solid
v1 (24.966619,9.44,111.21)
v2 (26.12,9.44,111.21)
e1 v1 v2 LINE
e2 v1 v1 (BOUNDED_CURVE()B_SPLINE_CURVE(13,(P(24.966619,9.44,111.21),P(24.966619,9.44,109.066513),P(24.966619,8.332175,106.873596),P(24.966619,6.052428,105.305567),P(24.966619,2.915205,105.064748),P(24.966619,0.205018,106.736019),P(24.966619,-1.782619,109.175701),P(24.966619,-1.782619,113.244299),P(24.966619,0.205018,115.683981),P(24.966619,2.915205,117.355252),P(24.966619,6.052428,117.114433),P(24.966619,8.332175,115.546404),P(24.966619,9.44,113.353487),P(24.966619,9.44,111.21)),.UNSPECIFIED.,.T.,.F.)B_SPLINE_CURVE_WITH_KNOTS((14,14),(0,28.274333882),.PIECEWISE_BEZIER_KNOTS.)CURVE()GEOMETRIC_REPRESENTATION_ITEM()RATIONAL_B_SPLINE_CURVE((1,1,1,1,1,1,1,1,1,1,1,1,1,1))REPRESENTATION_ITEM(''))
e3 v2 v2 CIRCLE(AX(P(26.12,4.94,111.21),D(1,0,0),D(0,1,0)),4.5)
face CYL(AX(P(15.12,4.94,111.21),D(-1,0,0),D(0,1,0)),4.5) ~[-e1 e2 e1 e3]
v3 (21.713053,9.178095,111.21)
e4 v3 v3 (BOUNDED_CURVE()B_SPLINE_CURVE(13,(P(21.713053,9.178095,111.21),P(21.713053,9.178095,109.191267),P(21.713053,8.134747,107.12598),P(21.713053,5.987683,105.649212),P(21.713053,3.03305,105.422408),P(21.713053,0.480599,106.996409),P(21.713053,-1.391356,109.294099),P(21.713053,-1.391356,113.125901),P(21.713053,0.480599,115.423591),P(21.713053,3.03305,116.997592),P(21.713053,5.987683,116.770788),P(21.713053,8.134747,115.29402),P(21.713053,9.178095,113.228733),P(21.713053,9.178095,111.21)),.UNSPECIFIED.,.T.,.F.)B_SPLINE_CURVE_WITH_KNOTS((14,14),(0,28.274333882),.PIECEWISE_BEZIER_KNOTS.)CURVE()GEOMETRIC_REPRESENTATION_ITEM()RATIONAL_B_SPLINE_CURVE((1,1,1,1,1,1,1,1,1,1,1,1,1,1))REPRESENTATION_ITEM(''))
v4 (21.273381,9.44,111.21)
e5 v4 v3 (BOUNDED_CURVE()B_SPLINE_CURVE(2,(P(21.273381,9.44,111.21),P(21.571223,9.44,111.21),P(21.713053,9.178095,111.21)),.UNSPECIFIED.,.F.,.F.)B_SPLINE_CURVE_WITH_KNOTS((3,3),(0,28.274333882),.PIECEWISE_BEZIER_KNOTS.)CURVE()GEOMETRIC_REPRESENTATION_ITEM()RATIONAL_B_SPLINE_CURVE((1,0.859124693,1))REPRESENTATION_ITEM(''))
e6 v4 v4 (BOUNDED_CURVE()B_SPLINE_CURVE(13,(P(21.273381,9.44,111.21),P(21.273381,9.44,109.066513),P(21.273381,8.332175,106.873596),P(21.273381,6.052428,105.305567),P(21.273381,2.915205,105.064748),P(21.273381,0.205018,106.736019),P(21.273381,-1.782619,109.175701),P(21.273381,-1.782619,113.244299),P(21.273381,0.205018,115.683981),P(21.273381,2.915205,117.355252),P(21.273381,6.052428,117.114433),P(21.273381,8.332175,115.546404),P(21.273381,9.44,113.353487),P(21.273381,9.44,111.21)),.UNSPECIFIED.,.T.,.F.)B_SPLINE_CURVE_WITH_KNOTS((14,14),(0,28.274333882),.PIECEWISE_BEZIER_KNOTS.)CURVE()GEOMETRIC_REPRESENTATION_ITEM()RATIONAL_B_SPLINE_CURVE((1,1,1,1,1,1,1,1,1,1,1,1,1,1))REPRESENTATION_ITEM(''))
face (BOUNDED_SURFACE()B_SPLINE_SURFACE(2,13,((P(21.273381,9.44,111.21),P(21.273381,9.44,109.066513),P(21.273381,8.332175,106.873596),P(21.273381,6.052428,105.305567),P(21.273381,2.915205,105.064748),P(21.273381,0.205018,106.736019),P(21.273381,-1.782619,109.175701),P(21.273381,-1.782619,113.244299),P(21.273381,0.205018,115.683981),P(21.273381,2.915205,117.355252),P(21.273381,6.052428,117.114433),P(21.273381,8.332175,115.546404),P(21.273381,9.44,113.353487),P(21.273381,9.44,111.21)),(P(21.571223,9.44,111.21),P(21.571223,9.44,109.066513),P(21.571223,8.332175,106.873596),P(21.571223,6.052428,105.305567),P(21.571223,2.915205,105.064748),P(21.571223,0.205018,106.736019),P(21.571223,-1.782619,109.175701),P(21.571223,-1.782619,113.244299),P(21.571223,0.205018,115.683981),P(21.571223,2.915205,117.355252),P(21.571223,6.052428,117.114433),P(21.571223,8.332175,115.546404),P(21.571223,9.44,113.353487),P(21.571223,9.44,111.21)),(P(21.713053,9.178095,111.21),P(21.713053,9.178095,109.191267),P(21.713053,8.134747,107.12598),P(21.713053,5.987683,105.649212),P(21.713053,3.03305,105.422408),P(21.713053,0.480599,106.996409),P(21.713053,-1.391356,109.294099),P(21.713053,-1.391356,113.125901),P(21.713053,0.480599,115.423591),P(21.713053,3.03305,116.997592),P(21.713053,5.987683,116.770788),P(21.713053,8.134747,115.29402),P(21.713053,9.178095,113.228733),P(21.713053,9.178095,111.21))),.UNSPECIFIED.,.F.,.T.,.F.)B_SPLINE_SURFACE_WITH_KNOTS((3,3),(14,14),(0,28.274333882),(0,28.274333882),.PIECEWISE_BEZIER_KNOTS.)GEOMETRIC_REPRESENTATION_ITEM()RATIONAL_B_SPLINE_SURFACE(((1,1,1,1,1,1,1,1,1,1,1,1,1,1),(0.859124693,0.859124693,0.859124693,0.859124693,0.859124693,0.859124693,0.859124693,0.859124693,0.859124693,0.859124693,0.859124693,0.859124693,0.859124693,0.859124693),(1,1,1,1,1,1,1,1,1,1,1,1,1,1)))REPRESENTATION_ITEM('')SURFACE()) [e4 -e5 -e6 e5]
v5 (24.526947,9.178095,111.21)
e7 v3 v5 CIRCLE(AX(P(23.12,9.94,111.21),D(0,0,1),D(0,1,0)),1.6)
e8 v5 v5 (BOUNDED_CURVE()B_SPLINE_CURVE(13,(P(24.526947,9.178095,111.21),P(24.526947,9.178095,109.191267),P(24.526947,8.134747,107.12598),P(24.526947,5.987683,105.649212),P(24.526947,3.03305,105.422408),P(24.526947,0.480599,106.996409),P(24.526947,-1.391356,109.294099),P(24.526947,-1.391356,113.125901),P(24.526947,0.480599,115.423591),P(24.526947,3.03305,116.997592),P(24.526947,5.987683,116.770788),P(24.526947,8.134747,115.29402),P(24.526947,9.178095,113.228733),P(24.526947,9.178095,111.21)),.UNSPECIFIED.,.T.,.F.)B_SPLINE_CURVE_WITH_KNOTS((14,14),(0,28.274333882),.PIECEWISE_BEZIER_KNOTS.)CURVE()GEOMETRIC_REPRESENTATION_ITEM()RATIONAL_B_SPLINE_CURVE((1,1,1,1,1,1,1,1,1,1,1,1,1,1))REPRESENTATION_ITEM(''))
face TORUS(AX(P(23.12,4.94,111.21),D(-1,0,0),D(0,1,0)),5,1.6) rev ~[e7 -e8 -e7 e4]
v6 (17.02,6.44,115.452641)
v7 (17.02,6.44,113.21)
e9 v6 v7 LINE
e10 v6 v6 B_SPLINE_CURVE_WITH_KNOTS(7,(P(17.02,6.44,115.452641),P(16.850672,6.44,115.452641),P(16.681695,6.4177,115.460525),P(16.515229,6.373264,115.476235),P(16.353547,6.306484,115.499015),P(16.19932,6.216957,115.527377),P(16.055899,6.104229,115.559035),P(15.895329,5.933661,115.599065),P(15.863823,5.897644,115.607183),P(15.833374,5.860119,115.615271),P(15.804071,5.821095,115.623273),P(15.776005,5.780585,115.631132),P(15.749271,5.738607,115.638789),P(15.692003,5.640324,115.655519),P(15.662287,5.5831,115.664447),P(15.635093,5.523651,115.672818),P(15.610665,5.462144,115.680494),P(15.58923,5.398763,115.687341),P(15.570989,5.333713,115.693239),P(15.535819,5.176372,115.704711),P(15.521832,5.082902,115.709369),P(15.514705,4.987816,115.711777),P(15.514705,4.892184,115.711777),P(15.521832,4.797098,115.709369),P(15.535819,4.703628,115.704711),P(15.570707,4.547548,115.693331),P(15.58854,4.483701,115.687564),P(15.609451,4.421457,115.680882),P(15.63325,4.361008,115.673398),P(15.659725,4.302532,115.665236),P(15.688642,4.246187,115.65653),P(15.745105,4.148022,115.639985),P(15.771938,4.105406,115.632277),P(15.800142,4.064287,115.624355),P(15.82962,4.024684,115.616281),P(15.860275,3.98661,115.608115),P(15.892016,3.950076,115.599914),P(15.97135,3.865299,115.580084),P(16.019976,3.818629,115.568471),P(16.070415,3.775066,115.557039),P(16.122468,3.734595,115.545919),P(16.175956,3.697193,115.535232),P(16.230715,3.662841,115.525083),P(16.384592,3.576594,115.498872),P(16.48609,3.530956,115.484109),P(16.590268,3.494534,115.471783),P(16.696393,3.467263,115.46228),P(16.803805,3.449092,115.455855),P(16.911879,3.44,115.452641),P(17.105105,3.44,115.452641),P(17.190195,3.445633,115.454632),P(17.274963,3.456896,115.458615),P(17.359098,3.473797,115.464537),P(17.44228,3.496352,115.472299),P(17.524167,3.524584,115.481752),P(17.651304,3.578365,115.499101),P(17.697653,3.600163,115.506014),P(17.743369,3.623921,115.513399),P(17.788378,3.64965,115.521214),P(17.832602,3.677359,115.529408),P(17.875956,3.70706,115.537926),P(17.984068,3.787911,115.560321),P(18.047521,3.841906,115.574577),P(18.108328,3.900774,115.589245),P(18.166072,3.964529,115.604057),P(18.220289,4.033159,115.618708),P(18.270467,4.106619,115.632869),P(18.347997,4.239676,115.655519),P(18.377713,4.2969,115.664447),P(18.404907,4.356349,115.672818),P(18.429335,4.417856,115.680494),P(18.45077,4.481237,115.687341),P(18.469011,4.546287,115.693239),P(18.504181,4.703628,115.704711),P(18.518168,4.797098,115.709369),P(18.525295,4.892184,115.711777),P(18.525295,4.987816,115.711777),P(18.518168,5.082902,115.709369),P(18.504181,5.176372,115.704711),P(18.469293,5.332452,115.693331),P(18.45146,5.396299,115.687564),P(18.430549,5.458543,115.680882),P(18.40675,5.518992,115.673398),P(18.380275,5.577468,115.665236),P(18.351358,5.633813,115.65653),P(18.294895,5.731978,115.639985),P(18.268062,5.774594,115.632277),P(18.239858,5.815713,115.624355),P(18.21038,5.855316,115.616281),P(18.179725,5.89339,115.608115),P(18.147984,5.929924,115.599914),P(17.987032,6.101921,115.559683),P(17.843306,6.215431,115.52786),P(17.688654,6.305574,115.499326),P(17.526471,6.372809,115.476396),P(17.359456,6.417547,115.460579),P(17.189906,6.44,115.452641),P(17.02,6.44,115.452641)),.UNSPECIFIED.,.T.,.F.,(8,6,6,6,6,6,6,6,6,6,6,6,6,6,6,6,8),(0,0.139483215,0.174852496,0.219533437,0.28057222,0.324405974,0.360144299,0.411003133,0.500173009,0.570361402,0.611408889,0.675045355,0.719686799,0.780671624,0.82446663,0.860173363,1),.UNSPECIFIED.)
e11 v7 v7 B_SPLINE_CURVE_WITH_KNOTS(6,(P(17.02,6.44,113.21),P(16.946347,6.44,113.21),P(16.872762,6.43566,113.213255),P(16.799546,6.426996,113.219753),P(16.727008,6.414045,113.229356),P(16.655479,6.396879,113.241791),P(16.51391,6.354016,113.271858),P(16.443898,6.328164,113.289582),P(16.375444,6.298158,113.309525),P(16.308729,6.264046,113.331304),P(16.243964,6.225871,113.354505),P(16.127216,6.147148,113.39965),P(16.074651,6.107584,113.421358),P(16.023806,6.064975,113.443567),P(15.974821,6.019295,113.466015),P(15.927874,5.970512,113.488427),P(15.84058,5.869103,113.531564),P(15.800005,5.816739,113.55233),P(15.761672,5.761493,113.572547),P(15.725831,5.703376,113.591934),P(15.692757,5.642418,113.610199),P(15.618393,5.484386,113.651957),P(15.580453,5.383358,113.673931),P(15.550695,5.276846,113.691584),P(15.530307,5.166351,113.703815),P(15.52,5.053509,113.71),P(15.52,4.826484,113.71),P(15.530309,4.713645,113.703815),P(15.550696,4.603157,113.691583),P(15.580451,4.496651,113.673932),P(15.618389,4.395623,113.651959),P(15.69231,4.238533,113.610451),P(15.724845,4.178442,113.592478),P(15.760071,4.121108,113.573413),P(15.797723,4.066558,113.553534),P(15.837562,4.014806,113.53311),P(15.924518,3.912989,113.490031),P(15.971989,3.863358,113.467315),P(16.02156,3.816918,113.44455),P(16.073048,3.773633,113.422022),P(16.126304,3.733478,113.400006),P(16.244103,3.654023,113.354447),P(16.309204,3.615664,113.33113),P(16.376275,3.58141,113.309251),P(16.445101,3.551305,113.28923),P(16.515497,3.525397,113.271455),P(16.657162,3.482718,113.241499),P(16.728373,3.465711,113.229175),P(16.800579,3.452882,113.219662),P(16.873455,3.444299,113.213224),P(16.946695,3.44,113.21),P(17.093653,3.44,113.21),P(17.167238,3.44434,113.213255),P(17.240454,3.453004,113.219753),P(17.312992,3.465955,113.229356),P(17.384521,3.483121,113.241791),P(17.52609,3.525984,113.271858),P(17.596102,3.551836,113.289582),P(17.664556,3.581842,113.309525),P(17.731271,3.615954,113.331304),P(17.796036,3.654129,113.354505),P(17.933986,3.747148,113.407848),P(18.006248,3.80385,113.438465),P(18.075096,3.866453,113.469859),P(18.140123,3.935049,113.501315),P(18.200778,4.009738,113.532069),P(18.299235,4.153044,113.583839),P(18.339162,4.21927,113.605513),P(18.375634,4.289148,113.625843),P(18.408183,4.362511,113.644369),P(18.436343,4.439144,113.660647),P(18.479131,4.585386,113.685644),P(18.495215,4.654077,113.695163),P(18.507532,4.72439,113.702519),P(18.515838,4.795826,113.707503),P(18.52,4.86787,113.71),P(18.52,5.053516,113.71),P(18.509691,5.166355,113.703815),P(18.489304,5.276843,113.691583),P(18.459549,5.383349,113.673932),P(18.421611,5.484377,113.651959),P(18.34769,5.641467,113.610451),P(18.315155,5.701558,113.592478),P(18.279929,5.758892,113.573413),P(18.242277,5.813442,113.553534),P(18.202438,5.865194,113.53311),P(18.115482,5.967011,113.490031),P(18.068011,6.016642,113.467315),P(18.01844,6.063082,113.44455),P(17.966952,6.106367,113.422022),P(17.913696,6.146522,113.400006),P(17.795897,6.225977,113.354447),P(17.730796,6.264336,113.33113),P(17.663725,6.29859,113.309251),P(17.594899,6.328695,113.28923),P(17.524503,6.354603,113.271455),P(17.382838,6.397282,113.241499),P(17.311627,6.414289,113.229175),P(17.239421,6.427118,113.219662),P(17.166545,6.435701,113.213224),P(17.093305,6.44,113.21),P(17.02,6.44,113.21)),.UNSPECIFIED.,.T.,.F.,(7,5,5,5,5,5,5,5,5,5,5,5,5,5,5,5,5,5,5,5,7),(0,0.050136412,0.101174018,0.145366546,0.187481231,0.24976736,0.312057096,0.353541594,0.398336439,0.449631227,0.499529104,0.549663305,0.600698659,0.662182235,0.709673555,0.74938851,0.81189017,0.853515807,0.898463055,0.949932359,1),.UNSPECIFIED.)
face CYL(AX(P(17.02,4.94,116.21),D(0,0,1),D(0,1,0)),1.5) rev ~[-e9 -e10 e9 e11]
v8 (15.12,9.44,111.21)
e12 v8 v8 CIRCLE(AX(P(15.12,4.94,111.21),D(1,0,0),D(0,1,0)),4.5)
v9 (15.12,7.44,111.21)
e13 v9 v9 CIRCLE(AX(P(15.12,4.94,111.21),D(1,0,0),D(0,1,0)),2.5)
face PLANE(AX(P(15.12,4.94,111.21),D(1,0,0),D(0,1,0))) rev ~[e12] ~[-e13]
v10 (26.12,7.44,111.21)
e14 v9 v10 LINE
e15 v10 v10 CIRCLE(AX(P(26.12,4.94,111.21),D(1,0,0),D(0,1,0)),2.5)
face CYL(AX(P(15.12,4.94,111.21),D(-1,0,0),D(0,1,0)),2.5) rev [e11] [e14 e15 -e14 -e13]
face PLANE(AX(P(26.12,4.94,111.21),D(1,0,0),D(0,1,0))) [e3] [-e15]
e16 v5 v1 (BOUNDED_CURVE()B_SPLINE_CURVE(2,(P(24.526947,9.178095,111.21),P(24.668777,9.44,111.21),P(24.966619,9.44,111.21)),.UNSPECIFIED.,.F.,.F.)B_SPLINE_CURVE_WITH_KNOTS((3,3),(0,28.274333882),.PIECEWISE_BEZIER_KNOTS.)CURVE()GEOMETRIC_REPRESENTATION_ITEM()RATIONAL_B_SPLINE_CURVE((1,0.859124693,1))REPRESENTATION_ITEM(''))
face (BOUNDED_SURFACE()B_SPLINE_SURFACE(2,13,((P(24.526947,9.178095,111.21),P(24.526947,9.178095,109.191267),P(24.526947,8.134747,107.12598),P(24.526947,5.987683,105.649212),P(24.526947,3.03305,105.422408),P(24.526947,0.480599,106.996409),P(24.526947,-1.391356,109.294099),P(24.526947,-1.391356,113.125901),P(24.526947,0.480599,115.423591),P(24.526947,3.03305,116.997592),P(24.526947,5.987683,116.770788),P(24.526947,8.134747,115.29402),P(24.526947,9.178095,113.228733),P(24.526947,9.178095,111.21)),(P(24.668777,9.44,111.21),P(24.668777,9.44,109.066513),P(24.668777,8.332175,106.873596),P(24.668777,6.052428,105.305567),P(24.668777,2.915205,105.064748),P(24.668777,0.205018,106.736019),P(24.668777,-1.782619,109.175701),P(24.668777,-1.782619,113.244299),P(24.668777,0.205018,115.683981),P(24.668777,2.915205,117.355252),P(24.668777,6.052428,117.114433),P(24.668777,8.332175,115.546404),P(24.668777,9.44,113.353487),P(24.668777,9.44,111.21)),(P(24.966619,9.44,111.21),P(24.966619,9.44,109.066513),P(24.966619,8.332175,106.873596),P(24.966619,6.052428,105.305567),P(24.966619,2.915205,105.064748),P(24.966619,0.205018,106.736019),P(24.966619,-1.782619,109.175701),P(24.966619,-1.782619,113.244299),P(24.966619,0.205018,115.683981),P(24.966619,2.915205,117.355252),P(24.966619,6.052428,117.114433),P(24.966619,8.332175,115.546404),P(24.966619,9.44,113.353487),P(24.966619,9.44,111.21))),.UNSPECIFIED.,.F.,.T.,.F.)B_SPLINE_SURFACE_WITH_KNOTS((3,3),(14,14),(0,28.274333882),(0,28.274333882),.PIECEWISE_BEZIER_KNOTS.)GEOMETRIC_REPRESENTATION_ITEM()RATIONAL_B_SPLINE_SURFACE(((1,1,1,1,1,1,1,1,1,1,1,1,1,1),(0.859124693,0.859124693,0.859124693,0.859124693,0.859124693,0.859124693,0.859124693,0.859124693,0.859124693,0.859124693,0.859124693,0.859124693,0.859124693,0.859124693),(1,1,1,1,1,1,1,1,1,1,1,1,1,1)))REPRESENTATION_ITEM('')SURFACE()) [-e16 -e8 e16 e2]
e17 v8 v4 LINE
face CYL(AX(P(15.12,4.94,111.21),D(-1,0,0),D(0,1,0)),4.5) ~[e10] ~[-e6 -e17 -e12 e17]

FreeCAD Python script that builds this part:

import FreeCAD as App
import Part
import Sketcher

V = App.Vector
Q = App.Units.Quantity


def edges_at(feature, points):
    """Names of the edges that pass closest to the given points."""
    edges = feature.Shape.Edges
    near = lambda p: min(range(len(edges)), key=lambda i: edges[i].distToShape(Part.Vertex(*p))[0])
    return sorted({f"Edge{near(p) + 1}" for p in points})

doc = App.newDocument("Part")
body = doc.addObject("PartDesign::Body", "Body")

# Sketch on XZ plane
sketch1 = body.newObject("Sketcher::SketchObject", "Sketch")
sketch1.AttachmentSupport = (doc.getObject("XZ_Plane"), [""])
sketch1.MapMode = "FlatFace"
sketch1.addGeometry(Part.Circle(V(0, 0, 0), V(0, 0, 1), 4.5), False)
sketch1.addGeometry(Part.Circle(V(0, 0, 0), V(0, 0, 1), 2.5), False)
sketch1.addConstraint(Sketcher.Constraint("Coincident", 0, 3, -1, 1))
sketch1.addConstraint(Sketcher.Constraint("Coincident", 1, 3, -1, 1))
sketch1.addConstraint(Sketcher.Constraint("Diameter", 0, Q("9 mm")))
sketch1.addConstraint(Sketcher.Constraint("Diameter", 1, Q("5 mm")))
pad1 = body.newObject("PartDesign::Pad", "Pad")
pad1.Profile = sketch1
pad1.Length = 11

# Sketch on XY plane
sketch2 = body.newObject("Sketcher::SketchObject", "Sketch001")
sketch2.AttachmentSupport = (doc.getObject("XY_Plane"), [""])
sketch2.MapMode = "FlatFace"
sketch2.AttachmentOffset = App.Placement(V(0, 0, 5), App.Rotation())
sketch2.addGeometry(Part.Circle(V(0, -1.9, 0), V(0, 0, 1), 1.5), False)
sketch2.addConstraint(Sketcher.Constraint("PointOnObject", 0, 3, -2))
sketch2.addConstraint(Sketcher.Constraint("Diameter", 0, Q("3 mm")))
sketch2.addConstraint(Sketcher.Constraint("DistanceY", 0, 3, -1, 1, Q("1.9 mm")))
pocket1 = body.newObject("PartDesign::Pocket", "Pocket")
pocket1.Profile = sketch2
pocket1.Length = 5

# Sketch on XY plane
sketch3 = body.newObject("Sketcher::SketchObject", "Sketch002")
sketch3.AttachmentSupport = (doc.getObject("XY_Plane"), [""])
sketch3.MapMode = "FlatFace"
sketch3.addGeometry(Part.Circle(V(5, -8, 0), V(0, 0, 1), 1.6), False)
sketch3.addConstraint(Sketcher.Constraint("Diameter", 0, Q("3.2 mm")))
sketch3.addConstraint(Sketcher.Constraint("DistanceX", -1, 1, 0, 3, Q("5 mm")))
sketch3.addConstraint(Sketcher.Constraint("DistanceY", 0, 3, -1, 1, Q("8 mm")))
groove = body.newObject("PartDesign::Groove", "Groove")
groove.Profile = sketch3
groove.ReferenceAxis = (sketch3, ["V_Axis"])
groove.Angle = 360
doc.recompute()

fillet = body.newObject("PartDesign::Fillet", "Fillet")
fillet.Base = (groove, edges_at(groove, [(-4.5, -9.52, 0), (-4.5, -6.48, 0)]))
fillet.Radius = 0.5
body2 = doc.addObject("PartDesign::Body", "Body001")
doc.recompute()

body.Placement = App.Placement(V(15.12, 4.94, 111.21), App.Rotation(V(0, 0, 1), 90))
boolean = body2.newObject("PartDesign::Boolean", "Boolean")
boolean.Type = "Fuse"
boolean.addObjects([body])

doc.recompute()
